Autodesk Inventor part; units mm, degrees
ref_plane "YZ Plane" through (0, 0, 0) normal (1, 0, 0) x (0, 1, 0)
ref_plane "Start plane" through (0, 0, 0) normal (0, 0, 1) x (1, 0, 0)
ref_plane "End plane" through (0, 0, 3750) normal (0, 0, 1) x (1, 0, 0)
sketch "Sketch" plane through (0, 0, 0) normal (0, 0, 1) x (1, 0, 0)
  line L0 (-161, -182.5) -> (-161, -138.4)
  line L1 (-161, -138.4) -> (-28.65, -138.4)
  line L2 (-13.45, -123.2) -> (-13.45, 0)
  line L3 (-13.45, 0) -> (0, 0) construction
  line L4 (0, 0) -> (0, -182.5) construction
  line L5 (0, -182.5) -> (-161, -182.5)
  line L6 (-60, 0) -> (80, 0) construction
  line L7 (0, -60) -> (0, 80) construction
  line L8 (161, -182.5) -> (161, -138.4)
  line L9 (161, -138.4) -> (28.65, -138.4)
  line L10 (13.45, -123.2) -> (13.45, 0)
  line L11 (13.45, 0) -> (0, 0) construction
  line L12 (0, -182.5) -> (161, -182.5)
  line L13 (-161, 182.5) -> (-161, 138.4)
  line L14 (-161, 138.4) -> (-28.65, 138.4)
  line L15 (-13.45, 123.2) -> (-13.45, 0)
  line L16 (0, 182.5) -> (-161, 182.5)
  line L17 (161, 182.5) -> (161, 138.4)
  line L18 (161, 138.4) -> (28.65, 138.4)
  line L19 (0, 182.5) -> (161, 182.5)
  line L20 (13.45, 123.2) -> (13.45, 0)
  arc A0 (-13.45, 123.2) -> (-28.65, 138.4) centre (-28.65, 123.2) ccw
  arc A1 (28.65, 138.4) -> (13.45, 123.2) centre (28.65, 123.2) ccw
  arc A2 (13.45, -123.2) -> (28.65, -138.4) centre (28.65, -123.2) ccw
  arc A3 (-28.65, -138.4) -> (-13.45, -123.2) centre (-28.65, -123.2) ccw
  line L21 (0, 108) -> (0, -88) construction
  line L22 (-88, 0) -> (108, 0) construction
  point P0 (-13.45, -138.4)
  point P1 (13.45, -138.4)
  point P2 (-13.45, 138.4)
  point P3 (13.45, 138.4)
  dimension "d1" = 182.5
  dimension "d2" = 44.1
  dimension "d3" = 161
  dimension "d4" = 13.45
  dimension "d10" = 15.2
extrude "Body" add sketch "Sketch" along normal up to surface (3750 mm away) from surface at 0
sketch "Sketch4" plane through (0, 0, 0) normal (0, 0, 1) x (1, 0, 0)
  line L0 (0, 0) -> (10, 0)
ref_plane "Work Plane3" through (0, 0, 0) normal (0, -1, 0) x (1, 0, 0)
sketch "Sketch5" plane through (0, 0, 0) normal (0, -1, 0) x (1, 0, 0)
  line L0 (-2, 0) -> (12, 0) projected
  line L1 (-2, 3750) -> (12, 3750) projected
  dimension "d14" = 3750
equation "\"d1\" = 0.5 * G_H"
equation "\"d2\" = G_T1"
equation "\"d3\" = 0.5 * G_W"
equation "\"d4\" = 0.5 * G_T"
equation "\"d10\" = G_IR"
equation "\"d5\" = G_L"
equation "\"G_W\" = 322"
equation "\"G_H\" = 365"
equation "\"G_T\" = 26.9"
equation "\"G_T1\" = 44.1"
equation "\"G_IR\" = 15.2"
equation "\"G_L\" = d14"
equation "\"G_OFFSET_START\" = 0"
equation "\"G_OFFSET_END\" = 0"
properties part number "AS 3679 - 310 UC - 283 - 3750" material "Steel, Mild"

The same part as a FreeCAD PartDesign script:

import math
import FreeCAD as App
import Part
import Sketcher

V = App.Vector

doc = App.newDocument("Part")
params = doc.addObject("Spreadsheet::Sheet", "Params")
for row, (alias, value) in enumerate([
    ("sketch1_radius", "15.2 mm"),
    ("sketch1_height", "44.1 mm"),
    ("pad1_length", "3750 mm"),
], start=1):
    params.set(f"A{row}", alias)
    params.set(f"B{row}", "=" + value)
    params.setAlias(f"B{row}", alias)

body = doc.addObject("PartDesign::Body", "Body")

sketch1 = body.newObject("Sketcher::SketchObject", "Sketch")
sketch1.AttachmentSupport = (doc.getObject("XY_Plane"), [""])
sketch1.MapMode = "FlatFace"
sketch1.addGeometry([
    Part.LineSegment(V(-161, -138, 0), V(-161, -182, 0)),
    Part.LineSegment(V(-161, -182, 0), V(161, -182, 0)),
    Part.LineSegment(V(161, -182, 0), V(161, -138, 0)),
    Part.LineSegment(V(161, -138, 0), V(29, -138, 0)),
    Part.ArcOfCircle(Part.Circle(V(29, -123, 0), V(0, 0, 1), 15), math.radians(180), math.radians(270)),
    Part.LineSegment(V(13, -123, 0), V(13, 123, 0)),
    Part.ArcOfCircle(Part.Circle(V(29, 123, 0), V(0, 0, 1), 15), math.radians(90), math.radians(180)),
    Part.LineSegment(V(29, 138, 0), V(161, 138, 0)),
    Part.LineSegment(V(161, 138, 0), V(161, 182, 0)),
    Part.LineSegment(V(161, 182, 0), V(-161, 182, 0)),
    Part.LineSegment(V(-161, 182, 0), V(-161, 138, 0)),
    Part.LineSegment(V(-161, 138, 0), V(-29, 138, 0)),
    Part.ArcOfCircle(Part.Circle(V(-29, 123, 0), V(0, 0, 1), 15), math.radians(0), math.radians(90)),
    Part.LineSegment(V(-13, 123, 0), V(-13, -123, 0)),
    Part.ArcOfCircle(Part.Circle(V(-29, -123, 0), V(0, 0, 1), 15), math.radians(-90), math.radians(0)),
    Part.LineSegment(V(-29, -138, 0), V(-161, -138, 0)),
], False)
sketch1.addConstraint([
    Sketcher.Constraint("Coincident", 0, 2, 1, 1),
    Sketcher.Constraint("Coincident", 1, 2, 2, 1),
    Sketcher.Constraint("Coincident", 2, 2, 3, 1),
    Sketcher.Constraint("Tangent", 3, 2, 4, 2),
    Sketcher.Constraint("Tangent", 4, 1, 5, 1),
    Sketcher.Constraint("Tangent", 5, 2, 6, 2),
    Sketcher.Constraint("Tangent", 6, 1, 7, 1),
    Sketcher.Constraint("Coincident", 7, 2, 8, 1),
    Sketcher.Constraint("Coincident", 8, 2, 9, 1),
    Sketcher.Constraint("Coincident", 9, 2, 10, 1),
    Sketcher.Constraint("Coincident", 10, 2, 11, 1),
    Sketcher.Constraint("Tangent", 11, 2, 12, 2),
    Sketcher.Constraint("Tangent", 12, 1, 13, 1),
    Sketcher.Constraint("Tangent", 13, 2, 14, 2),
    Sketcher.Constraint("Tangent", 14, 1, 15, 1),
    Sketcher.Constraint("Coincident", 15, 2, 0, 1),
    Sketcher.Constraint("Vertical", 0),
    Sketcher.Constraint("Horizontal", 1),
    Sketcher.Constraint("Vertical", 2),
    Sketcher.Constraint("Horizontal", 3),
    Sketcher.Constraint("Vertical", 5),
    Sketcher.Constraint("Horizontal", 7),
    Sketcher.Constraint("Vertical", 8),
    Sketcher.Constraint("Horizontal", 9),
    Sketcher.Constraint("Vertical", 10),
    Sketcher.Constraint("Horizontal", 11),
    Sketcher.Constraint("Vertical", 13),
    Sketcher.Constraint("Horizontal", 15),
    Sketcher.Constraint("Equal", 4, 6),
    Sketcher.Constraint("Equal", 6, 12),
    Sketcher.Constraint("Equal", 12, 14),
    Sketcher.Constraint("Symmetric", 4, 3, 12, 3, -1, 1),
    Sketcher.Constraint("Symmetric", 0, 2, 8, 2, -1, 1),
    Sketcher.Constraint("Symmetric", 7, 2, 10, 2, -2),
    Sketcher.Constraint("Symmetric", 2, 2, 15, 2, -2),
    Sketcher.Constraint("Radius", 4, 15.2),
    Sketcher.Constraint("DistanceY", 0, 2, 0, 1, 44.1),
    Sketcher.Constraint("DistanceX", 0, 2, -1, 1, 161.0),
    Sketcher.Constraint("DistanceY", 0, 2, -1, 1, 182.5),
    Sketcher.Constraint("DistanceX", -1, 1, 4, 1, 13.45),
])
sketch1.setExpression("Constraints[35]", "Params.sketch1_radius")
sketch1.setExpression("Constraints[36]", "Params.sketch1_height")
pad1 = body.newObject("PartDesign::Pad", "Pad")
pad1.Profile = sketch1
pad1.setExpression("Length", "Params.pad1_length")

doc.recompute()
